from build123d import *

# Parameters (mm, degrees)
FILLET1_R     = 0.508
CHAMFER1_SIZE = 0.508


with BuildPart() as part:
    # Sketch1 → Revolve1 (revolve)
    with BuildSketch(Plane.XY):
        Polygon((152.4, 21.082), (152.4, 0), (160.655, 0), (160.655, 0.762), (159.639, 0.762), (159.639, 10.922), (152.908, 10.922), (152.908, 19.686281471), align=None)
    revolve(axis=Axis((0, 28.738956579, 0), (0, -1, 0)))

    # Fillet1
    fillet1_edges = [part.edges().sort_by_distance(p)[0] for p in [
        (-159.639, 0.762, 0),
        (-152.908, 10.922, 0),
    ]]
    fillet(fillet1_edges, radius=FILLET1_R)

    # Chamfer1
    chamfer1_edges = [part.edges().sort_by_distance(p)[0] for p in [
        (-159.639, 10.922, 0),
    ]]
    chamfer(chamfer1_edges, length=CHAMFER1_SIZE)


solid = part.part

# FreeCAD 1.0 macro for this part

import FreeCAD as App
import Part
import Sketcher
Q = App.Units.Quantity


def edges_at(feature, points):
    """Names of the edges that pass closest to the given points."""
    edges = feature.Shape.Edges
    near = lambda p: min(range(len(edges)), key=lambda i: edges[i].distToShape(Part.Vertex(*p))[0])
    return sorted({f"Edge{near(p) + 1}" for p in points})


def add_polygon(sketch, points):
    """Adds a closed chain of lines whose ends are joined by coincident constraints."""
    first, n = sketch.GeometryCount, len(points)
    for a, b in zip(points, points[1:] + points[:1]):
        sketch.addGeometry(Part.LineSegment(App.Vector(*a, 0), App.Vector(*b, 0)), False)
    for i in range(n):
        sketch.addConstraint(Sketcher.Constraint("Coincident", first + i, 2, first + (i + 1) % n, 1))

doc = App.newDocument("Part")
body = doc.addObject("PartDesign::Body", "Body")

# Sketch on XY plane
sketch1 = body.newObject("Sketcher::SketchObject", "Sketch")
sketch1.AttachmentSupport = (doc.getObject("XY_Plane"), [""])
sketch1.MapMode = "FlatFace"
add_polygon(sketch1, [(152.4, 21.1), (152.4, 0), (160.7, 0), (160.7, 0.8), (159.6, 0.8), (159.6, 10.9), (152.9, 10.9), (152.9, 19.7)])  # lines 0-7
sketch1.addConstraint([
    Sketcher.Constraint("Vertical", 0),
    Sketcher.Constraint("Horizontal", 1),
    Sketcher.Constraint("Vertical", 2),
    Sketcher.Constraint("Horizontal", 3),
    Sketcher.Constraint("Vertical", 4),
    Sketcher.Constraint("Horizontal", 5),
    Sketcher.Constraint("Vertical", 6),
    Sketcher.Constraint("PointOnObject", 0, 2, -1),
    Sketcher.Constraint("DistanceY", 4, 1, 4, 2, Q("0.4 in")),
    Sketcher.Constraint("DistanceX", -1, 1, 0, 2, Q("6 in")),
    Sketcher.Constraint("Angle", 7, Q("110 deg")),
    Sketcher.Constraint("DistanceX", 3, 2, 3, 1, Q("0.04 in")),
    Sketcher.Constraint("DistanceY", 0, 2, 0, 1, Q("0.83 in")),
    Sketcher.Constraint("DistanceY", 2, 1, 2, 2, Q("0.03 in")),
    Sketcher.Constraint("DistanceX", 1, 1, 1, 2, Q("0.325 in")),
    Sketcher.Constraint("DistanceX", 5, 2, 5, 1, Q("0.265 in")),
])
revolution = body.newObject("PartDesign::Revolution", "Revolution")
revolution.Profile = sketch1
revolution.ReferenceAxis = (sketch1, ["V_Axis"])
revolution.Angle = 360
doc.recompute()

fillet = body.newObject("PartDesign::Fillet", "Fillet")
fillet.Base = (revolution, edges_at(revolution, [(-159.639, 0.762, 0), (-152.908, 10.922, 0)]))
fillet.Radius = Q("0.02 in")
doc.recompute()

chamfer = body.newObject("PartDesign::Chamfer", "Chamfer")
chamfer.Base = (fillet, edges_at(fillet, [(-159.639, 10.922, 0)]))
chamfer.Size = Q("0.02 in")

doc.recompute()
